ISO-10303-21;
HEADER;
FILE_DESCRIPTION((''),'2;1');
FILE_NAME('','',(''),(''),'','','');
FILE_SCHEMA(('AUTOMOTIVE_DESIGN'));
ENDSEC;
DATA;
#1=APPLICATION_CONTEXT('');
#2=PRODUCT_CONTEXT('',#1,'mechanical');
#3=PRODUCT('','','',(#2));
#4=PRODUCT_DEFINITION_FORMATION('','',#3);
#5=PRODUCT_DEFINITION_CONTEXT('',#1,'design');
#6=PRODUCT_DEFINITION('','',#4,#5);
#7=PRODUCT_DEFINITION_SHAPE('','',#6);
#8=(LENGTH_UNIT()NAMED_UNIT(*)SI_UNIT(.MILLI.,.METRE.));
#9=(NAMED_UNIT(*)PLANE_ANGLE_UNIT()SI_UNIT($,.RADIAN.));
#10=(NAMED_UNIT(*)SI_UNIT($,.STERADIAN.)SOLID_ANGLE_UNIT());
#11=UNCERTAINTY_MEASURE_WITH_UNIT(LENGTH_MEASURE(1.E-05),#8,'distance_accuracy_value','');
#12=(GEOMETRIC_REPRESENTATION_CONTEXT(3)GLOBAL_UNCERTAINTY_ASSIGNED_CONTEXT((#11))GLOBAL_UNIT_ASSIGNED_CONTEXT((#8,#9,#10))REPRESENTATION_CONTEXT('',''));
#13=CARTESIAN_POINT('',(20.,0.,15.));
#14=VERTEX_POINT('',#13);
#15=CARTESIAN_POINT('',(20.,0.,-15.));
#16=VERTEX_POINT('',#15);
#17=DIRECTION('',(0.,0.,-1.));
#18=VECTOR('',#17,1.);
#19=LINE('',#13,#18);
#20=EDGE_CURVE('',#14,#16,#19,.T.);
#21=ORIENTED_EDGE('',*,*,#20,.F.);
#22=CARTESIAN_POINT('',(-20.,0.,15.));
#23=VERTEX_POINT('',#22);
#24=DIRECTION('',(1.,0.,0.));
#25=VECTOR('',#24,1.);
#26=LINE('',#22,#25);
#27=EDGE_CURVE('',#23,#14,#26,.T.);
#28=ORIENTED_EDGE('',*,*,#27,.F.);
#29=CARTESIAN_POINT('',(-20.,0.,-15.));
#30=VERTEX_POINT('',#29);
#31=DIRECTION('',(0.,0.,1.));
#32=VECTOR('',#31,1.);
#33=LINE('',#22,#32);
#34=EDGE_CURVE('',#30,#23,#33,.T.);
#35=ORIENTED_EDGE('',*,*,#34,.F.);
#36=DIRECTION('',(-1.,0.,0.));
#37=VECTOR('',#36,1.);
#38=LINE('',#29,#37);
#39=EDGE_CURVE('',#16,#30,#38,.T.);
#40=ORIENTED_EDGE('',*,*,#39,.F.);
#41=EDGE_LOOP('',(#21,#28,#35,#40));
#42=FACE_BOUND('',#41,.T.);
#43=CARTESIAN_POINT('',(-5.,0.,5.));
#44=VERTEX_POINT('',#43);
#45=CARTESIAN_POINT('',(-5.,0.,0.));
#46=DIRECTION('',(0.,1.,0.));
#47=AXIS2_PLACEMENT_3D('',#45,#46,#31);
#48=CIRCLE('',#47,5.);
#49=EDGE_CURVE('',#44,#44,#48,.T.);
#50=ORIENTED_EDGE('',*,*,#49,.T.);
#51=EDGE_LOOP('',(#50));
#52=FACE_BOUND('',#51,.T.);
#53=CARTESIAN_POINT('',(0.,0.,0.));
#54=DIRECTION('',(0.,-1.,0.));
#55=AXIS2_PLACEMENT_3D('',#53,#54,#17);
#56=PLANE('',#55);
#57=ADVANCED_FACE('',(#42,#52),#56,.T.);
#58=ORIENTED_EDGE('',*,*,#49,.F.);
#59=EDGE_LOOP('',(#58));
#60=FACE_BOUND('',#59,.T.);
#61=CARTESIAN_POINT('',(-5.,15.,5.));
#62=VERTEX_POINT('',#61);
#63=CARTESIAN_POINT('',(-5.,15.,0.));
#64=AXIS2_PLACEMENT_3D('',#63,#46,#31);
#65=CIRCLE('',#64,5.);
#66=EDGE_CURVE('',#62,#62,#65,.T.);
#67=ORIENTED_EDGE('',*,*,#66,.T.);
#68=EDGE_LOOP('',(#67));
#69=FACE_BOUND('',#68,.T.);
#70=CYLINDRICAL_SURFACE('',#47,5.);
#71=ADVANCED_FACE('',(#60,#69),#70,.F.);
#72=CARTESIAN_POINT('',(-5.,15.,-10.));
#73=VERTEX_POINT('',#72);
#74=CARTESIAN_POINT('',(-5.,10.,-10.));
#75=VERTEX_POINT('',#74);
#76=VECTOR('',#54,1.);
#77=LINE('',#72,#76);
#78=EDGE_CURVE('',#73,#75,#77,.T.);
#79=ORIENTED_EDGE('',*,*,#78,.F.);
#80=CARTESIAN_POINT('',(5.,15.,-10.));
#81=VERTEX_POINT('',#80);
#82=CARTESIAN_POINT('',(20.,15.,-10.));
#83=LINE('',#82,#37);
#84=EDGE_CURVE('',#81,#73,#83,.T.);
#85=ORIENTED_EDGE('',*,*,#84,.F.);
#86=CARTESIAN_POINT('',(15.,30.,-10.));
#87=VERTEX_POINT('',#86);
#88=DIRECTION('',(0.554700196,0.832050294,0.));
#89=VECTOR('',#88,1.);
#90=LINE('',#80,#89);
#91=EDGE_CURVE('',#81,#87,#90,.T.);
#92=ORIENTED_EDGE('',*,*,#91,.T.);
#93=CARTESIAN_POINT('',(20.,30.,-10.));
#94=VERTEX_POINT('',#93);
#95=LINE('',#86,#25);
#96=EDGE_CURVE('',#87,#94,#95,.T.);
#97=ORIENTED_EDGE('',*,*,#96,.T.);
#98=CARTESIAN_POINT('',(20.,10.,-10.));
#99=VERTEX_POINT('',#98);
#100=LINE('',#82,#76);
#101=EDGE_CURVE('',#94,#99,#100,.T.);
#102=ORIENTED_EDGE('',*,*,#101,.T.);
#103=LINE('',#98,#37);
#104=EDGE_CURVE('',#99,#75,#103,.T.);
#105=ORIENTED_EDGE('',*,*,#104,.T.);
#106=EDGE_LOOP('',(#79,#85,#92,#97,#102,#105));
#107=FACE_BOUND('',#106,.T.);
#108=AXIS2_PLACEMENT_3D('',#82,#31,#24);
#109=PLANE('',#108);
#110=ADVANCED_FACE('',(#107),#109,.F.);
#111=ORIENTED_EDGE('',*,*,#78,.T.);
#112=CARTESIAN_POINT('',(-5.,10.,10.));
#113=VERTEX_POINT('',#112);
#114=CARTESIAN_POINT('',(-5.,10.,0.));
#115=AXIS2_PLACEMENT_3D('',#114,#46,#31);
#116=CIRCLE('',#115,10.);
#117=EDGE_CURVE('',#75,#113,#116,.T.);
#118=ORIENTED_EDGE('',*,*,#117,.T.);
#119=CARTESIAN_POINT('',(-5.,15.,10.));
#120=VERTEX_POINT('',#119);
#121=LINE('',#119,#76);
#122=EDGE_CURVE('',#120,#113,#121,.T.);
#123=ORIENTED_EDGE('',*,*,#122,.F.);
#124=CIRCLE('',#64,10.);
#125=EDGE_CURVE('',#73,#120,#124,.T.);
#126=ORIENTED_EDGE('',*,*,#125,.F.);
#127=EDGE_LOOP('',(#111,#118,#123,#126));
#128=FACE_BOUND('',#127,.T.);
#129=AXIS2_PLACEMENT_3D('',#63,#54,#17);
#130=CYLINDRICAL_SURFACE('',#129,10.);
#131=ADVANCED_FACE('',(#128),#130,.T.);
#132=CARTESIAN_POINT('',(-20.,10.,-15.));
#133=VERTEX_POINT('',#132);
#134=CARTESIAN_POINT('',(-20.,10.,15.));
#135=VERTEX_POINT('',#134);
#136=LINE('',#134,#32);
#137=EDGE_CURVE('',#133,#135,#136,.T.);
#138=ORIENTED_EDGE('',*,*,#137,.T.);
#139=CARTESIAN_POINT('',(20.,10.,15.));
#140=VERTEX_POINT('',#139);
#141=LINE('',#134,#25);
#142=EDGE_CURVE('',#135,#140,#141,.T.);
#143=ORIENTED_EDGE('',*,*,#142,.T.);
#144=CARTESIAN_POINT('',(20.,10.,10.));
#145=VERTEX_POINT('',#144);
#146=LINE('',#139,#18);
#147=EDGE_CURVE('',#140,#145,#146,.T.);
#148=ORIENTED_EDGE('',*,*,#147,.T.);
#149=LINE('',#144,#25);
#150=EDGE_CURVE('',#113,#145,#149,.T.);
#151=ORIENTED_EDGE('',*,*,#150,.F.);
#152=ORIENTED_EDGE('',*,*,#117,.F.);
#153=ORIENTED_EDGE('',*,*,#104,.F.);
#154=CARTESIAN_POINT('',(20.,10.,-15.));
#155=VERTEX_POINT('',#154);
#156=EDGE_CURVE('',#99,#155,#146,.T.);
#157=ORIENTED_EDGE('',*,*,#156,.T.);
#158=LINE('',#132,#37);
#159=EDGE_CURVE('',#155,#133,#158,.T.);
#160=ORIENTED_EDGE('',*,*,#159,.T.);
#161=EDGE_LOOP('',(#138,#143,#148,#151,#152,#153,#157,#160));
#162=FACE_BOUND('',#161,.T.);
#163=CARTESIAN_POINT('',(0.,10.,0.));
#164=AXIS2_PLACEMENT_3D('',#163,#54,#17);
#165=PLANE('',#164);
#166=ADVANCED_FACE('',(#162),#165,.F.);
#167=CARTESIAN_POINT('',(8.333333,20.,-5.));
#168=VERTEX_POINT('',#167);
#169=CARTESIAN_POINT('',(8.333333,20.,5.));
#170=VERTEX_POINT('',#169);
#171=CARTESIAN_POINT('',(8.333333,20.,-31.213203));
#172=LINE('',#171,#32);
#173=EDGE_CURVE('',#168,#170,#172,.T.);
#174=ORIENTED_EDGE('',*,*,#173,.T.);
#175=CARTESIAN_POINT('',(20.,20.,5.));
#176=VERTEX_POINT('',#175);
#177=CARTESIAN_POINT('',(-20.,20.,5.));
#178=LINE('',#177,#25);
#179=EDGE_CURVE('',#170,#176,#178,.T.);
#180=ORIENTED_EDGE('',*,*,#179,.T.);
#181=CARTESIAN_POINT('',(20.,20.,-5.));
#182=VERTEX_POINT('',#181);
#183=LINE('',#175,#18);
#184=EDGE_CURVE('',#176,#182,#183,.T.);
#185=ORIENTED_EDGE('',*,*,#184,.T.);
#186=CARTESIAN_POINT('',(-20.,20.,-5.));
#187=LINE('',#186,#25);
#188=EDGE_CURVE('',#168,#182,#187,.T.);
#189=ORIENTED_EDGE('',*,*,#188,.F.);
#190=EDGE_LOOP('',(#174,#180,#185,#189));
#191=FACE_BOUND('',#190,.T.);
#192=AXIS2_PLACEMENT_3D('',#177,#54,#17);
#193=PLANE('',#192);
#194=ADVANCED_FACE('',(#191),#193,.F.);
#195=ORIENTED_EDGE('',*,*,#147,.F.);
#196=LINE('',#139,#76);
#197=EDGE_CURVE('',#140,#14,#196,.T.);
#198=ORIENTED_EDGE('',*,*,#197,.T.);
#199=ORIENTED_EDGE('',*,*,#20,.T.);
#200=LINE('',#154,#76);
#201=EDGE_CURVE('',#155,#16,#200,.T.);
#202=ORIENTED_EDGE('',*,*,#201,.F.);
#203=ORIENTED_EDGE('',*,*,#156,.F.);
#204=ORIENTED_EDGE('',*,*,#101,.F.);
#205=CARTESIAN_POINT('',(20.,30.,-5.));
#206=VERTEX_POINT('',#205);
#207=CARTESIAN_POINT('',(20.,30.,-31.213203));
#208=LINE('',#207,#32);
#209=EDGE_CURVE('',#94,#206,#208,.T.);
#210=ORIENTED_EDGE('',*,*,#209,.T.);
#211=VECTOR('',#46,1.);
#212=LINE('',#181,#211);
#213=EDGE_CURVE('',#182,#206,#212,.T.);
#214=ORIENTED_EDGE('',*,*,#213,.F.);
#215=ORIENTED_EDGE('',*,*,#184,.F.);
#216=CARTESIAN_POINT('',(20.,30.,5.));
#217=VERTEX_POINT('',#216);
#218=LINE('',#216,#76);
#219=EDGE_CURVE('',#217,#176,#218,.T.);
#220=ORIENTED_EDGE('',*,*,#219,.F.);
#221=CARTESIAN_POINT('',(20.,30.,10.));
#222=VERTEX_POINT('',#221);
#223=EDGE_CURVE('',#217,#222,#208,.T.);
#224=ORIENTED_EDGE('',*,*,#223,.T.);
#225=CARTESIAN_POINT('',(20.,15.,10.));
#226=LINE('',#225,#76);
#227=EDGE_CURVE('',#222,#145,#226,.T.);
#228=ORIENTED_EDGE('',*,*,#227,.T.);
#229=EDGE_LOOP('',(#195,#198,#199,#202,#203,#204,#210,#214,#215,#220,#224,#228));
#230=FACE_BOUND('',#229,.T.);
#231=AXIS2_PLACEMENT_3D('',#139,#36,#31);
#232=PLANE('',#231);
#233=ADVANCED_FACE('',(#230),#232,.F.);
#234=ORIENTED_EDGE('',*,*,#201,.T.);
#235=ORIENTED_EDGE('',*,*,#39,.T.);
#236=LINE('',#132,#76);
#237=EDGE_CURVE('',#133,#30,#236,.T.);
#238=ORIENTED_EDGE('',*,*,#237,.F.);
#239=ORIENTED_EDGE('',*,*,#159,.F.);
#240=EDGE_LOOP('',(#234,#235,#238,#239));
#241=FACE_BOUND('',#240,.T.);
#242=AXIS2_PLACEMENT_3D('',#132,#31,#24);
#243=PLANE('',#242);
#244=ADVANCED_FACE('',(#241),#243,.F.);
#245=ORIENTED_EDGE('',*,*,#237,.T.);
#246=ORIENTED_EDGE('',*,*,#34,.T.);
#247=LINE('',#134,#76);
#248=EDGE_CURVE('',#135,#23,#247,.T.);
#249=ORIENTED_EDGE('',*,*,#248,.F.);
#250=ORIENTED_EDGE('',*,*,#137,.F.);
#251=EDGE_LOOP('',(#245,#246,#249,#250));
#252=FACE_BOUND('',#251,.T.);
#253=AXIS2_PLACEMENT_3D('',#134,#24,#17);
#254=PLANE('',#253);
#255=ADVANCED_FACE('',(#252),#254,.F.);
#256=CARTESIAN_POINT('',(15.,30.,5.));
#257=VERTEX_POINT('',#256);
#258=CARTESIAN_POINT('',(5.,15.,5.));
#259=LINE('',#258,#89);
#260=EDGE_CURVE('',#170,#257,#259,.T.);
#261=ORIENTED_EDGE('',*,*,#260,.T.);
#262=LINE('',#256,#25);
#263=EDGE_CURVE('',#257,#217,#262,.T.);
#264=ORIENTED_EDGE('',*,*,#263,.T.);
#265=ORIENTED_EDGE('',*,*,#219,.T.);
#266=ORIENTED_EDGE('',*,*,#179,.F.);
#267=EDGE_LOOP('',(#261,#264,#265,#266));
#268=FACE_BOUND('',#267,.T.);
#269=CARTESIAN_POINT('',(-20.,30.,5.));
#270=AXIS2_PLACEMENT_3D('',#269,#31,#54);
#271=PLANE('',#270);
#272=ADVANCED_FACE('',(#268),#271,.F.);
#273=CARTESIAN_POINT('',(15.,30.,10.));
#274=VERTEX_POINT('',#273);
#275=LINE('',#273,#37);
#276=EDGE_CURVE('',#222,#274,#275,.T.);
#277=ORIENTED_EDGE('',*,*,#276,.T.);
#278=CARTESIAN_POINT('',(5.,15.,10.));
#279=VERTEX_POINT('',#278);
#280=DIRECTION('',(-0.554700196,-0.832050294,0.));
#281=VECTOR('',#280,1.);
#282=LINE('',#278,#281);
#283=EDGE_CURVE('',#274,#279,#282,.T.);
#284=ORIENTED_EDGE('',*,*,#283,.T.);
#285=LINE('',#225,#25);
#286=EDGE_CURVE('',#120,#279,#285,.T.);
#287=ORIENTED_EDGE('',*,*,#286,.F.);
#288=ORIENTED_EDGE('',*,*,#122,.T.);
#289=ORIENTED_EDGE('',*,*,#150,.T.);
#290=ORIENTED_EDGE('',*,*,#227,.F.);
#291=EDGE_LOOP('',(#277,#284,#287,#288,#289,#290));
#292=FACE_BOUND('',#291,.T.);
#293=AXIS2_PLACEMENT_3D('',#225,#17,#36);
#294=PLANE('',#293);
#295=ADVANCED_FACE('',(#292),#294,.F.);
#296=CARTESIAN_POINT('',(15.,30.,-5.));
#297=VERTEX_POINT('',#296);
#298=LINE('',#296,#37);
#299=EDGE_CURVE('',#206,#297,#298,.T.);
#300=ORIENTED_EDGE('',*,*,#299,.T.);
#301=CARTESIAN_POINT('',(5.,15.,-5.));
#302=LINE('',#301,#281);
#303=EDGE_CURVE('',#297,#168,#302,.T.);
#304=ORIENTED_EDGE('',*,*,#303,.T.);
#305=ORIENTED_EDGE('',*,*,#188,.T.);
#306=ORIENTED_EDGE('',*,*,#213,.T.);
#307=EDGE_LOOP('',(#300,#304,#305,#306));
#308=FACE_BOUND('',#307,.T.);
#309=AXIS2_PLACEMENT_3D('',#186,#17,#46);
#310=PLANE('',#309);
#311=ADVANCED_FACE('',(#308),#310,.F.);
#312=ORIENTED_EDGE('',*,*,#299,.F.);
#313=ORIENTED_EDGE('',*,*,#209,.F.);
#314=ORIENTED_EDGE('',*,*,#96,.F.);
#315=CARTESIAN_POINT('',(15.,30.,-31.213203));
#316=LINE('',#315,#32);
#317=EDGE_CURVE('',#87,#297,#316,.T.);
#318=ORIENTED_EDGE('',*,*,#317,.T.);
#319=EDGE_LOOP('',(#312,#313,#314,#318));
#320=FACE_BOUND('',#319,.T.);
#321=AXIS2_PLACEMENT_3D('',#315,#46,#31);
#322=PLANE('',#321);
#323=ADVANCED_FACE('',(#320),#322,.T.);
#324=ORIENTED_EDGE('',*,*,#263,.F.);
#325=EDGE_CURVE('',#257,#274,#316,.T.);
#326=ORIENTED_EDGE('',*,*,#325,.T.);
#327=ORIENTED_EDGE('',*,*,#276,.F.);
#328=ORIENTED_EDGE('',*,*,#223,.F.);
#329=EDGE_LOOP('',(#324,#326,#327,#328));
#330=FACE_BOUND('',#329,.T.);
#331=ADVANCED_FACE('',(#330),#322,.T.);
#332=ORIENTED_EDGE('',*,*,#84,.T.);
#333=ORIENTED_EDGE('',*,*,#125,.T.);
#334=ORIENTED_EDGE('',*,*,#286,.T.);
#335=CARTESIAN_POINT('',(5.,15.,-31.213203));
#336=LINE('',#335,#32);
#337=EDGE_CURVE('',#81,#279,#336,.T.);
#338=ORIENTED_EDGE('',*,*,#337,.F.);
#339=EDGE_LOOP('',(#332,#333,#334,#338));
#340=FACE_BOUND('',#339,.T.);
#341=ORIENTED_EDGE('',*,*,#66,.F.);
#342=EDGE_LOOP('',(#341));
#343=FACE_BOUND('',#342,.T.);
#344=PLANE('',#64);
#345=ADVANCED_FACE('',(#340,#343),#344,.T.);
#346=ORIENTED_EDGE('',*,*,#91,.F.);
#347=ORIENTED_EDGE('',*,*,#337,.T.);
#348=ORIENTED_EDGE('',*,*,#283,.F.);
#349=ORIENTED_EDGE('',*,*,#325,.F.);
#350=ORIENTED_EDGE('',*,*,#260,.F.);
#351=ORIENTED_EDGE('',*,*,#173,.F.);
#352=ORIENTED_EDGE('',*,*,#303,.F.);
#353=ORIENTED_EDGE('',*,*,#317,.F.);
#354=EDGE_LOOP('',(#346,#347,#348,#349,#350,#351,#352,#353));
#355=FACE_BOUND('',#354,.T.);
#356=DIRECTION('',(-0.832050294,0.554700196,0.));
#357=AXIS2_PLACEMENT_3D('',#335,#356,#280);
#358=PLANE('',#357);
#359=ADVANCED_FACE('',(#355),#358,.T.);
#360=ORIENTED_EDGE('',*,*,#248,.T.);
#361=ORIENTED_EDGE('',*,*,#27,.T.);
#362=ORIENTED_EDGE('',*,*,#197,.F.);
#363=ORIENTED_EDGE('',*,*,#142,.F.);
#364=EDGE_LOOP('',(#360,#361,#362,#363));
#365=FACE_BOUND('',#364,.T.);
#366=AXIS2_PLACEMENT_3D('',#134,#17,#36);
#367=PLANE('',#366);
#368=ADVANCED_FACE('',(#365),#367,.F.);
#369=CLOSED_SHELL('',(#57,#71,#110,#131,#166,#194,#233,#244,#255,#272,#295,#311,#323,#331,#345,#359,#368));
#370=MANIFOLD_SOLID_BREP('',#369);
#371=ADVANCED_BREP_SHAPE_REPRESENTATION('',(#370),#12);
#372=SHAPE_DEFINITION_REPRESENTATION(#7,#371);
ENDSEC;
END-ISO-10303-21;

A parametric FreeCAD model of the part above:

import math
import FreeCAD as App
import Part
import Sketcher

V = App.Vector

doc = App.newDocument("Part")
body = doc.addObject("PartDesign::Body", "Body")

# Sketch on XZ plane
sketch1 = body.newObject("Sketcher::SketchObject", "Sketch")
sketch1.AttachmentSupport = (doc.getObject("XZ_Plane"), [""])
sketch1.MapMode = "FlatFace"
sketch1.addGeometry([
    Part.LineSegment(V(-20, -15, 0), V(-20, 15, 0)),
    Part.LineSegment(V(-20, 15, 0), V(20, 15, 0)),
    Part.LineSegment(V(20, 15, 0), V(20, -15, 0)),
    Part.LineSegment(V(20, -15, 0), V(-20, -15, 0)),
], False)
sketch1.addConstraint([
    Sketcher.Constraint("Coincident", 0, 2, 1, 1),
    Sketcher.Constraint("Coincident", 1, 2, 2, 1),
    Sketcher.Constraint("Coincident", 2, 2, 3, 1),
    Sketcher.Constraint("Coincident", 3, 2, 0, 1),
    Sketcher.Constraint("Vertical", 0),
    Sketcher.Constraint("Horizontal", 1),
    Sketcher.Constraint("Vertical", 2),
    Sketcher.Constraint("Horizontal", 3),
    Sketcher.Constraint("Symmetric", 0, 2, 2, 2, -1, 1),
    Sketcher.Constraint("DistanceX", 1, 1, 1, 2, 40.0),
    Sketcher.Constraint("DistanceY", 0, 1, 0, 2, 30.0),
])
pad1 = body.newObject("PartDesign::Pad", "Pad")
pad1.Profile = sketch1
pad1.Length = 10
pad1.Reversed = True

# Sketch on XZ plane
sketch2 = body.newObject("Sketcher::SketchObject", "Sketch001")
sketch2.AttachmentSupport = (doc.getObject("XZ_Plane"), [""])
sketch2.MapMode = "FlatFace"
sketch2.AttachmentOffset = App.Placement(V(0, 0, -10), App.Rotation())
sketch2.addGeometry([
    Part.LineSegment(V(20, 10, 0), V(20, -10, 0)),
    Part.LineSegment(V(20, -10, 0), V(-5, -10, 0)),
    Part.ArcOfCircle(Part.Circle(V(-5, 0, 0), V(0, 0, 1), 10), math.radians(90), math.radians(270)),
    Part.LineSegment(V(-5, 10, 0), V(20, 10, 0)),
], False)
sketch2.addConstraint([
    Sketcher.Constraint("Coincident", 0, 2, 1, 1),
    Sketcher.Constraint("Tangent", 1, 2, 2, 2),
    Sketcher.Constraint("Tangent", 2, 1, 3, 1),
    Sketcher.Constraint("Coincident", 3, 2, 0, 1),
    Sketcher.Constraint("Vertical", 0),
    Sketcher.Constraint("Horizontal", 1),
    Sketcher.Constraint("Horizontal", 3),
    Sketcher.Constraint("PointOnObject", 2, 3, -1),
    Sketcher.Constraint("Radius", 2, 10.0),
    Sketcher.Constraint("DistanceX", 1, 2, 1, 1, 25.0),
    Sketcher.Constraint("DistanceX", 2, 3, -1, 1, 5.0),
])
pad2 = body.newObject("PartDesign::Pad", "Pad001")
pad2.Profile = sketch2
pad2.Length = 5
pad2.Reversed = True

# Sketch on XY plane
sketch3 = body.newObject("Sketcher::SketchObject", "Sketch002")
sketch3.AttachmentSupport = (doc.getObject("XY_Plane"), [""])
sketch3.MapMode = "FlatFace"
sketch3.AttachmentOffset = App.Placement(V(0, 0, 10), App.Rotation())
sketch3.addGeometry([
    Part.LineSegment(V(5, 15, 0), V(20, 15, 0)),
    Part.LineSegment(V(20, 15, 0), V(20, 30, 0)),
    Part.LineSegment(V(20, 30, 0), V(15, 30, 0)),
    Part.LineSegment(V(15, 30, 0), V(5, 15, 0)),
], False)
sketch3.addConstraint([
    Sketcher.Constraint("Coincident", 0, 2, 1, 1),
    Sketcher.Constraint("Coincident", 1, 2, 2, 1),
    Sketcher.Constraint("Coincident", 2, 2, 3, 1),
    Sketcher.Constraint("Coincident", 3, 2, 0, 1),
    Sketcher.Constraint("Horizontal", 0),
    Sketcher.Constraint("Vertical", 1),
    Sketcher.Constraint("Horizontal", 2),
    Sketcher.Constraint("Equal", 0, 1),
    Sketcher.Constraint("DistanceX", 0, 1, 0, 2, 15.0),
    Sketcher.Constraint("DistanceX", 2, 2, 2, 1, 5.0),
    Sketcher.Constraint("DistanceX", -1, 1, 0, 2, 20.0),
    Sketcher.Constraint("DistanceY", -1, 1, 0, 2, 15.0),
])
pad3 = body.newObject("PartDesign::Pad", "Pad002")
pad3.Profile = sketch3
pad3.Length = 20
pad3.Reversed = True

# Sketch on YZ plane
sketch4 = body.newObject("Sketcher::SketchObject", "Sketch003")
sketch4.AttachmentSupport = (doc.getObject("YZ_Plane"), [""])
sketch4.MapMode = "FlatFace"
sketch4.AttachmentOffset = App.Placement(V(0, 0, 20), App.Rotation())
sketch4.addGeometry([
    Part.LineSegment(V(30, 5, 0), V(20, 5, 0)),
    Part.LineSegment(V(20, 5, 0), V(20, -5, 0)),
    Part.LineSegment(V(20, -5, 0), V(30, -5, 0)),
    Part.LineSegment(V(30, -5, 0), V(30, 5, 0)),
], False)
sketch4.addConstraint([
    Sketcher.Constraint("Coincident", 0, 2, 1, 1),
    Sketcher.Constraint("Coincident", 1, 2, 2, 1),
    Sketcher.Constraint("Coincident", 2, 2, 3, 1),
    Sketcher.Constraint("Coincident", 3, 2, 0, 1),
    Sketcher.Constraint("Horizontal", 0),
    Sketcher.Constraint("Vertical", 1),
    Sketcher.Constraint("Horizontal", 2),
    Sketcher.Constraint("Vertical", 3),
    Sketcher.Constraint("Equal", 2, 1),
    Sketcher.Constraint("DistanceX", 0, 2, 0, 1, 10.0),
    Sketcher.Constraint("DistanceX", -1, 1, 0, 2, 20.0),
    Sketcher.Constraint("DistanceY", -1, 1, 0, 2, 5.0),
])
pocket1 = body.newObject("PartDesign::Pocket", "Pocket")
pocket1.Profile = sketch4
pocket1.Type = "ThroughAll"

# Sketch on XZ plane
sketch5 = body.newObject("Sketcher::SketchObject", "Sketch004")
sketch5.AttachmentSupport = (doc.getObject("XZ_Plane"), [""])
sketch5.MapMode = "FlatFace"
sketch5.AttachmentOffset = App.Placement(V(0, 0, -15), App.Rotation())
sketch5.addGeometry(Part.Circle(V(-5, 0, 0), V(0, 0, 1), 5), False)
sketch5.addConstraint([
    Sketcher.Constraint("PointOnObject", 0, 3, -1),
    Sketcher.Constraint("Diameter", 0, 10.0),
    Sketcher.Constraint("DistanceX", 0, 3, -1, 1, 5.0),
])
pocket2 = body.newObject("PartDesign::Pocket", "Pocket001")
pocket2.Profile = sketch5
pocket2.Type = "ThroughAll"
pocket2.Reversed = True

doc.recompute()
